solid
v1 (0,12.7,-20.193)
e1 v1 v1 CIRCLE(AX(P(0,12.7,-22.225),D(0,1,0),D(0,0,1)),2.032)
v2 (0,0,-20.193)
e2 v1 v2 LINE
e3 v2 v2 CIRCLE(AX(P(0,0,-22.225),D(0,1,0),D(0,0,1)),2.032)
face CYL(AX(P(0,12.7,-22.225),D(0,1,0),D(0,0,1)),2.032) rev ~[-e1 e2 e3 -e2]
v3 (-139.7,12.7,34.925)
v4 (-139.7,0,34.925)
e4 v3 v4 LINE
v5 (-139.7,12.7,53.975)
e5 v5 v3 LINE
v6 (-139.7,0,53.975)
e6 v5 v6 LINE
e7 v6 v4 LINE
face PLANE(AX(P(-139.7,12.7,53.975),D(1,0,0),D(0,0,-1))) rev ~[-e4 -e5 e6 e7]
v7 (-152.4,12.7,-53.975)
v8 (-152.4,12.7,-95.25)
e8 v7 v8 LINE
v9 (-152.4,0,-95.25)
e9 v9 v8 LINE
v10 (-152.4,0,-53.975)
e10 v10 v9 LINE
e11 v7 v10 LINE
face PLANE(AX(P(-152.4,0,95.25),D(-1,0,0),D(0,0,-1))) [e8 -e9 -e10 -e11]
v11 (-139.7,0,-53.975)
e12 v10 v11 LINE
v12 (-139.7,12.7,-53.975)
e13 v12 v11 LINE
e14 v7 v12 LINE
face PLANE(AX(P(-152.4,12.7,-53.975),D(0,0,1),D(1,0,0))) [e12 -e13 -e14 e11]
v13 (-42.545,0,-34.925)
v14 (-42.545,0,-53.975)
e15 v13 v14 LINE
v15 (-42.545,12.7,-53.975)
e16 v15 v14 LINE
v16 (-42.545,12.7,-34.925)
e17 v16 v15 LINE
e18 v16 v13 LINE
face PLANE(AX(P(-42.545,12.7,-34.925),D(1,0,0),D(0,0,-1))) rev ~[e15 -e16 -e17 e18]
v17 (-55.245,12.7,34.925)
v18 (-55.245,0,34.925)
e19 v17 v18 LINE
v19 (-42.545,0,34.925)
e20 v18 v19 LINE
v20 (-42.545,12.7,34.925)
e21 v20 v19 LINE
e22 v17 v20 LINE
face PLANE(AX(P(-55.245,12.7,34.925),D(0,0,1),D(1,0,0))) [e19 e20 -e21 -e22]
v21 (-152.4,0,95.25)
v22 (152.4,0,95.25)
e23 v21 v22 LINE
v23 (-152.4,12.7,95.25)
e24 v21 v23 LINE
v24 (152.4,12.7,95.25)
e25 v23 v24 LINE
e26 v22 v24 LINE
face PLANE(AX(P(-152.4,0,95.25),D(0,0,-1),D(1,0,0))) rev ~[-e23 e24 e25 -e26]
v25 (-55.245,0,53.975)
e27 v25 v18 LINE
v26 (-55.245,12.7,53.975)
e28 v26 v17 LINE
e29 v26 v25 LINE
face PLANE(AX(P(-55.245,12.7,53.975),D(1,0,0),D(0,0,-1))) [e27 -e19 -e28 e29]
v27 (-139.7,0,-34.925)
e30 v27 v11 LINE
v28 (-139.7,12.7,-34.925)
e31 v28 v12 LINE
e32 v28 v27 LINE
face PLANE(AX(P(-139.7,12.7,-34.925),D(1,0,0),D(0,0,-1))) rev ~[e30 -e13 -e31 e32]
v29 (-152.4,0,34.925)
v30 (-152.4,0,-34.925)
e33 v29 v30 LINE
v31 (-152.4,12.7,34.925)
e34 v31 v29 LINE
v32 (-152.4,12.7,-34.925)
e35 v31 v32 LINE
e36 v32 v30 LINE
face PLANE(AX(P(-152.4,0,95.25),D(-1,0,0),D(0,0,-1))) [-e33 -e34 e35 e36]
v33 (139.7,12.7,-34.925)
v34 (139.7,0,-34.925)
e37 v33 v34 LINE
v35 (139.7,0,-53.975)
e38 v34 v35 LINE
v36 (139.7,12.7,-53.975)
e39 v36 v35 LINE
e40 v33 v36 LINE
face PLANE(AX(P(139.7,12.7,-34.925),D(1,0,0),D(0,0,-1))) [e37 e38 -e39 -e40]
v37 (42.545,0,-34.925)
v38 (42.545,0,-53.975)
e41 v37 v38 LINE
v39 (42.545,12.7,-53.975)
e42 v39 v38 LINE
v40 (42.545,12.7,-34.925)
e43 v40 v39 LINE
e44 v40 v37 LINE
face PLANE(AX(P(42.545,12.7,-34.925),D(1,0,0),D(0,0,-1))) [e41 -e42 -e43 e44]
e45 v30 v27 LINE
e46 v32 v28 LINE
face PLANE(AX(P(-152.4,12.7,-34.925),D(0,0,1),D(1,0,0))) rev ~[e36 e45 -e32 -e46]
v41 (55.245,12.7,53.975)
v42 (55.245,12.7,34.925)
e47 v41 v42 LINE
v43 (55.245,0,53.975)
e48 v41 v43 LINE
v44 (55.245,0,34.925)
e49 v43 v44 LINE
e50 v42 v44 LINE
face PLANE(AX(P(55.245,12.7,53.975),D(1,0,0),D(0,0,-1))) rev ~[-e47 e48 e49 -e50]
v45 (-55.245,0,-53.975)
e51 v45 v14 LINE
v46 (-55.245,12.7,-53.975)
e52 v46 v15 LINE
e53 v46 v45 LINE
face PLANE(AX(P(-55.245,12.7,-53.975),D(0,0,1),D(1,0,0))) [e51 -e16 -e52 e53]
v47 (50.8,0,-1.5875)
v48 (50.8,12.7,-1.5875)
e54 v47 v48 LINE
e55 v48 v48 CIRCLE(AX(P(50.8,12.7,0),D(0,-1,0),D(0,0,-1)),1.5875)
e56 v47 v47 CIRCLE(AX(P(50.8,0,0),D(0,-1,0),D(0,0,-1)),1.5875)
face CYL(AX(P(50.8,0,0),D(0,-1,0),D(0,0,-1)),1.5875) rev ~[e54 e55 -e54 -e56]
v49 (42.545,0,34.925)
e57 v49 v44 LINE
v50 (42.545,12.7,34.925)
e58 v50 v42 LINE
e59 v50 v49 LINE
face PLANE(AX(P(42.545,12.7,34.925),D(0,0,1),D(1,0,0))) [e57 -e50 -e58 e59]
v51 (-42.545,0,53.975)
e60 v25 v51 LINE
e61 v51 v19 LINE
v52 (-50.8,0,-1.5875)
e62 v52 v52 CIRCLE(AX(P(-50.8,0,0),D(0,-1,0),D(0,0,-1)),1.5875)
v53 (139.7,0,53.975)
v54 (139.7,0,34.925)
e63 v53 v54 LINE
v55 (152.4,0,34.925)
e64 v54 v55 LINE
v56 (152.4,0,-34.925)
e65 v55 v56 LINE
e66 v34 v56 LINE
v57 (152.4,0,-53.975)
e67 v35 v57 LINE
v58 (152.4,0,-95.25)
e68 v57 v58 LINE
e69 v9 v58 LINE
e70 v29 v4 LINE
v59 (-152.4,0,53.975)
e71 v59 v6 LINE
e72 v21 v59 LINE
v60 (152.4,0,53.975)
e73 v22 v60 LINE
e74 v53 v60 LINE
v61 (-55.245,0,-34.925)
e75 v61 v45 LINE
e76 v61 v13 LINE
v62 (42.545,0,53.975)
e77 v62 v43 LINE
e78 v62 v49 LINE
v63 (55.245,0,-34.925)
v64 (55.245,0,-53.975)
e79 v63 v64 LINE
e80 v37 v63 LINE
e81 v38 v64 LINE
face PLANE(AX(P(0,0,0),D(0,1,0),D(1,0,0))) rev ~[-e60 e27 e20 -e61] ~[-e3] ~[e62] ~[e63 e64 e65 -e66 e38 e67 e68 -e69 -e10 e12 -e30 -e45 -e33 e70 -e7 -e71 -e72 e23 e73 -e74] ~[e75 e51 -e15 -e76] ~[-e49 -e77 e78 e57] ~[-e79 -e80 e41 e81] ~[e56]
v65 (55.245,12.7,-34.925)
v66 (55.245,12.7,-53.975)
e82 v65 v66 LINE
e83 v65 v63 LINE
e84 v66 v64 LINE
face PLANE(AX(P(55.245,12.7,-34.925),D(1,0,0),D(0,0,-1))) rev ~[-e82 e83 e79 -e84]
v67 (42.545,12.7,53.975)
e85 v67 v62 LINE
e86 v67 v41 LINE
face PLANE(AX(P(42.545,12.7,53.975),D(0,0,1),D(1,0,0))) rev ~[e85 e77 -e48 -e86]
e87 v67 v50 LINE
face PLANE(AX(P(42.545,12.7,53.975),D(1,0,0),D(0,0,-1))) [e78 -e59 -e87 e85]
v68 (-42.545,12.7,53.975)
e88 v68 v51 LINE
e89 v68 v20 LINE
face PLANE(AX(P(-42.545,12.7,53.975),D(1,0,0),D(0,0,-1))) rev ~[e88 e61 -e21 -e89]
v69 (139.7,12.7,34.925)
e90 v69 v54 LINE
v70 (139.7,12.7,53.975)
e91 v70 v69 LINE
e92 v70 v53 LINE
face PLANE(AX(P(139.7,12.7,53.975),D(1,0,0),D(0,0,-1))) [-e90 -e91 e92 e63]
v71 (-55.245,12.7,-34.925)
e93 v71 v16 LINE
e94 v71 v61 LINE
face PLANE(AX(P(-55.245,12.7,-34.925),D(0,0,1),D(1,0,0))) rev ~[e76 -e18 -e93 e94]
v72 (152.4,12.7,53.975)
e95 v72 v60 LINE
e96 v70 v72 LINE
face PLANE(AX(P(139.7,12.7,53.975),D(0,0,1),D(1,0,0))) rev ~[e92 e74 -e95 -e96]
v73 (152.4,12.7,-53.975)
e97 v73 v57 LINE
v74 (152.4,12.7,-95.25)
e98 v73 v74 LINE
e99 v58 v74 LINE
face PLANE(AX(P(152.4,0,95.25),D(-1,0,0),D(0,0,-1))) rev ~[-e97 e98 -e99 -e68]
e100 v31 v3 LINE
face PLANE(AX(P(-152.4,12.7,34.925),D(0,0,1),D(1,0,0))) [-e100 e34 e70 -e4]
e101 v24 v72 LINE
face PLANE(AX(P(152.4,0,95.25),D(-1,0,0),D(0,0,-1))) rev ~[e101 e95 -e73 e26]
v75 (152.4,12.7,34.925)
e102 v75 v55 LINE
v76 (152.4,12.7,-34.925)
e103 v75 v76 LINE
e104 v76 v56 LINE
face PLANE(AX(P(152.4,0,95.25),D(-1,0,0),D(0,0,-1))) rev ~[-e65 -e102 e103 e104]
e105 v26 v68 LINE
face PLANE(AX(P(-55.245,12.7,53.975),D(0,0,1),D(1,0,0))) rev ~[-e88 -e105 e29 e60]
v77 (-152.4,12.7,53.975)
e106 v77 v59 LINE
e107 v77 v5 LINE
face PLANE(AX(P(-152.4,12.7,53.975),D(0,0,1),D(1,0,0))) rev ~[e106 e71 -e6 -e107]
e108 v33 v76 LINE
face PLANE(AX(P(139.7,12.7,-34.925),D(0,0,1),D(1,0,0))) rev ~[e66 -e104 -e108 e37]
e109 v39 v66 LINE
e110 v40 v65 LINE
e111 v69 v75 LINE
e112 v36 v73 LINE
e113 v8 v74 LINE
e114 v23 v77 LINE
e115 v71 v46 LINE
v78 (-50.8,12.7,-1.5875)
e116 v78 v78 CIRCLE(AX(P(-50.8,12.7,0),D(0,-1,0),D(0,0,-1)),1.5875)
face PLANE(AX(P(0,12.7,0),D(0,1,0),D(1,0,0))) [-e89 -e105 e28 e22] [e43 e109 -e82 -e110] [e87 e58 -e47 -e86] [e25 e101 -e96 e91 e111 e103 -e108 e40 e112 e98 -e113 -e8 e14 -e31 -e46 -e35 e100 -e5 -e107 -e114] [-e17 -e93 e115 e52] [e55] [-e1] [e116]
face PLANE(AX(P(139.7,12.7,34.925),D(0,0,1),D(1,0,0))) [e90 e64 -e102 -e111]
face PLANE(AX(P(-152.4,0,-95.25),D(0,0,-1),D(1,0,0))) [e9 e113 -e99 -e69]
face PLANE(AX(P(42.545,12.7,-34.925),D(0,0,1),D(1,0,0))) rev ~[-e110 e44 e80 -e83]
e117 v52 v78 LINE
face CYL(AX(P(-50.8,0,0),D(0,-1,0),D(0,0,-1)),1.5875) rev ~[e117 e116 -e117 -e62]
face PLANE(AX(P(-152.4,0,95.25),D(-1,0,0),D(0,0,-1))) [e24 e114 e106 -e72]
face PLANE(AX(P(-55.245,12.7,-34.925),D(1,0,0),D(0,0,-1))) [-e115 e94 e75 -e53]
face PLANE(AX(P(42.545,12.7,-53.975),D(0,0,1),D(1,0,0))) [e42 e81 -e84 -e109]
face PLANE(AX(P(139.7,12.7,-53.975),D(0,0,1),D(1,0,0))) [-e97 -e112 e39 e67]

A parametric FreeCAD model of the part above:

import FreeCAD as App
import Part
import Sketcher
from FreeCAD import Vector
Q = App.Units.Quantity


def add_polygon(sketch, points):
    """Adds a closed chain of lines whose ends are joined by coincident constraints."""
    first, n = sketch.GeometryCount, len(points)
    for a, b in zip(points, points[1:] + points[:1]):
        sketch.addGeometry(Part.LineSegment(App.Vector(*a, 0), App.Vector(*b, 0)), False)
    for i in range(n):
        sketch.addConstraint(Sketcher.Constraint("Coincident", first + i, 2, first + (i + 1) % n, 1))

doc = App.newDocument("Part")
body = doc.addObject("PartDesign::Body", "Body")

# Sketch on XZ plane
sketch1 = body.newObject("Sketcher::SketchObject", "Sketch")
sketch1.AttachmentSupport = (doc.getObject("XZ_Plane"), [""])
sketch1.MapMode = "FlatFace"
add_polygon(sketch1, [(-152.4, -95.25), (-152.4, 95.25), (152.4, 95.25), (152.4, -95.25)])  # lines 0-3
sketch1.addConstraint([
    Sketcher.Constraint("Vertical", 0),
    Sketcher.Constraint("Horizontal", 1),
    Sketcher.Constraint("Vertical", 2),
    Sketcher.Constraint("Horizontal", 3),
    Sketcher.Constraint("Symmetric", 0, 2, 2, 2, -1, 1),
    Sketcher.Constraint("DistanceX", 1, 1, 1, 2, Q("12 in")),
    Sketcher.Constraint("DistanceY", 0, 1, 0, 2, Q("7.5 in")),
])
pad1 = body.newObject("PartDesign::Pad", "Pad")
pad1.Profile = sketch1
pad1.Length = Q("0.5 in")
pad1.Reversed = True

# Sketch on XZ plane
sketch2 = body.newObject("Sketcher::SketchObject", "Sketch001")
sketch2.AttachmentSupport = (doc.getObject("XZ_Plane"), [""])
sketch2.MapMode = "FlatFace"
sketch2.AttachmentOffset = App.Placement(Vector(0, 0, -0.5 * 25.4), App.Rotation())
add_polygon(sketch2, [(-55.245, -53.975), (-55.245, -34.925), (-42.545, -34.925), (-42.545, -53.975)])  # lines 0-3
add_polygon(sketch2, [(42.545, -53.975), (42.545, -34.925), (55.245, -34.925), (55.245, -53.975)])  # lines 4-7
add_polygon(sketch2, [(-55.245, 34.925), (-55.245, 53.975), (-42.545, 53.975), (-42.545, 34.925)])  # lines 8-11
add_polygon(sketch2, [(42.545, 34.925), (42.545, 53.975), (55.245, 53.975), (55.245, 34.925)])  # lines 12-15
add_polygon(sketch2, [(139.7, -53.975), (139.7, -34.925), (152.4, -34.925), (152.4, -53.975)])  # lines 16-19
add_polygon(sketch2, [(-152.4, -53.975), (-152.4, -34.925), (-139.7, -34.925), (-139.7, -53.975)])  # lines 20-23
add_polygon(sketch2, [(139.7, 34.925), (139.7, 53.975), (152.4, 53.975), (152.4, 34.925)])  # lines 24-27
add_polygon(sketch2, [(-152.4, 34.925), (-152.4, 53.975), (-139.7, 53.975), (-139.7, 34.925)])  # lines 28-31
sketch2.addConstraint([
    Sketcher.Constraint("Vertical", 0),
    Sketcher.Constraint("Horizontal", 1),
    Sketcher.Constraint("Vertical", 2),
    Sketcher.Constraint("Horizontal", 3),
    Sketcher.Constraint("Vertical", 4),
    Sketcher.Constraint("Horizontal", 5),
    Sketcher.Constraint("Vertical", 6),
    Sketcher.Constraint("Horizontal", 7),
    Sketcher.Constraint("Vertical", 8),
    Sketcher.Constraint("Horizontal", 9),
    Sketcher.Constraint("Vertical", 10),
    Sketcher.Constraint("Horizontal", 11),
    Sketcher.Constraint("Vertical", 12),
    Sketcher.Constraint("Horizontal", 13),
    Sketcher.Constraint("Vertical", 14),
    Sketcher.Constraint("Horizontal", 15),
    Sketcher.Constraint("Vertical", 16),
    Sketcher.Constraint("Horizontal", 17),
    Sketcher.Constraint("Vertical", 18),
    Sketcher.Constraint("Horizontal", 19),
    Sketcher.Constraint("Vertical", 20),
    Sketcher.Constraint("Horizontal", 21),
    Sketcher.Constraint("Vertical", 22),
    Sketcher.Constraint("Horizontal", 23),
    Sketcher.Constraint("Vertical", 24),
    Sketcher.Constraint("Horizontal", 25),
    Sketcher.Constraint("Vertical", 26),
    Sketcher.Constraint("Horizontal", 27),
    Sketcher.Constraint("Vertical", 28),
    Sketcher.Constraint("Horizontal", 29),
    Sketcher.Constraint("Vertical", 30),
    Sketcher.Constraint("Horizontal", 31),
    Sketcher.Constraint("Symmetric", 6, 2, 8, 2, -1, 1),
    Sketcher.Constraint("Symmetric", 4, 2, 10, 2, -1, 1),
    Sketcher.Constraint("Symmetric", 2, 2, 12, 2, -1, 1),
    Sketcher.Constraint("Symmetric", 0, 2, 14, 2, -1, 1),
    Sketcher.Constraint("Symmetric", 22, 2, 24, 2, -1, 1),
    Sketcher.Constraint("Symmetric", 20, 2, 26, 2, -1, 1),
    Sketcher.Constraint("Symmetric", 18, 2, 28, 2, -1, 1),
    Sketcher.Constraint("Symmetric", 16, 2, 30, 2, -1, 1),
    Sketcher.Constraint("Symmetric", 1, 2, 4, 2, -2),
    Sketcher.Constraint("Symmetric", 3, 2, 6, 2, -2),
    Sketcher.Constraint("Symmetric", 17, 2, 20, 2, -2),
    Sketcher.Constraint("Symmetric", 19, 2, 22, 2, -2),
    Sketcher.Constraint("Horizontal", 5, 2, 16, 2),
    Sketcher.Constraint("Horizontal", 7, 2, 18, 2),
    Sketcher.Constraint("Equal", 15, 17),
    Sketcher.Constraint("DistanceX", 1, 1, 1, 2, Q("0.5 in")),
    Sketcher.Constraint("DistanceX", -1, 1, 17, 2, Q("6 in")),
    Sketcher.Constraint("DistanceY", 0, 1, 0, 2, Q("0.75 in")),
    Sketcher.Constraint("DistanceY", 0, 2, 8, 2, Q("3.5 in")),
    Sketcher.Constraint("DistanceX", 1, 2, 4, 2, Q("3.35 in")),
])
pocket1 = body.newObject("PartDesign::Pocket", "Pocket")
pocket1.Profile = sketch2
pocket1.Type = "ThroughAll"
pocket1.Reversed = True

# Sketch on XZ plane
sketch3 = body.newObject("Sketcher::SketchObject", "Sketch002")
sketch3.AttachmentSupport = (doc.getObject("XZ_Plane"), [""])
sketch3.MapMode = "FlatFace"
sketch3.addGeometry([
    Part.Circle(Vector(50.8, 0, 0), Vector(0, 0, 1), 1.5875),
    Part.Circle(Vector(-50.8, 0, 0), Vector(0, 0, 1), 1.5875),
], False)
sketch3.addConstraint([
    Sketcher.Constraint("Equal", 0, 1),
    Sketcher.Constraint("Symmetric", 0, 3, 1, 3, -1, 1),
    Sketcher.Constraint("PointOnObject", 0, 3, -1),
    Sketcher.Constraint("Diameter", 0, Q("0.125 in")),
    Sketcher.Constraint("DistanceX", -1, 1, 0, 3, Q("2 in")),
])
pocket2 = body.newObject("PartDesign::Pocket", "Pocket001")
pocket2.Profile = sketch3
pocket2.Type = "ThroughAll"

# Sketch on XZ plane
sketch4 = body.newObject("Sketcher::SketchObject", "Sketch003")
sketch4.AttachmentSupport = (doc.getObject("XZ_Plane"), [""])
sketch4.MapMode = "FlatFace"
sketch4.AttachmentOffset = App.Placement(Vector(0, 0, -0.5 * 25.4), App.Rotation())
sketch4.addGeometry(Part.Circle(Vector(0, -22.225, 0), Vector(0, 0, 1), 2.032), False)
sketch4.addConstraint([
    Sketcher.Constraint("PointOnObject", 0, 3, -2),
    Sketcher.Constraint("Diameter", 0, Q("0.16 in")),
    Sketcher.Constraint("DistanceY", 0, 3, -1, 1, Q("0.875 in")),
])
pocket3 = body.newObject("PartDesign::Pocket", "Pocket002")
pocket3.Profile = sketch4
pocket3.Type = "ThroughAll"
pocket3.Reversed = True

doc.recompute()
